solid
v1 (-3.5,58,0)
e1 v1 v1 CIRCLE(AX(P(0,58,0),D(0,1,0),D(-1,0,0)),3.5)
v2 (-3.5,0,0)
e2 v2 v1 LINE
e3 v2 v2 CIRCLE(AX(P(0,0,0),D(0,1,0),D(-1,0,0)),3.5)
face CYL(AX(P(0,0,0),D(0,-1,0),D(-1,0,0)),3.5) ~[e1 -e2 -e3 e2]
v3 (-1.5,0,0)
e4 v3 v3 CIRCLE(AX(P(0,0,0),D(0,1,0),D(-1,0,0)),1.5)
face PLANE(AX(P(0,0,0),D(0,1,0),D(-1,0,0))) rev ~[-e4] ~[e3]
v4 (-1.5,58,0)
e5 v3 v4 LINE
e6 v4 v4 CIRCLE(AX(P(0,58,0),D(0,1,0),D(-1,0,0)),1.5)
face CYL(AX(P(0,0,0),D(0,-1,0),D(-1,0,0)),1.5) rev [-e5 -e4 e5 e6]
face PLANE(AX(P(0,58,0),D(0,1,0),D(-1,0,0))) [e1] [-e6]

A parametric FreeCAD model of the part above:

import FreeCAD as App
import Part
import Sketcher
Q = App.Units.Quantity

doc = App.newDocument("Part")
params = doc.addObject("Spreadsheet::Sheet", "Params")
for row, (alias, value) in enumerate([
    ("sketch1_diameter", "7 mm"),
    ("sketch1_diameter2", "3 mm"),
    ("pad1_length", "58 mm"),
], start=1):
    params.set(f"A{row}", alias)
    params.set(f"B{row}", "=" + value)
    params.setAlias(f"B{row}", alias)

body = doc.addObject("PartDesign::Body", "Body")

sketch1 = doc.addObject("Sketcher::SketchObject", "Sketch")
body.addObject(sketch1)
sketch1.AttachmentSupport = (doc.XZ_Plane, [""])
sketch1.MapMode = "FlatFace"
sketch1.addGeometry([
    Part.Circle(App.Vector(0, 0, 0), App.Vector(0, 0, 1), 3.5),
    Part.Circle(App.Vector(0, 0, 0), App.Vector(0, 0, 1), 1.5),
], False)
sketch1.addConstraint([
    Sketcher.Constraint("Coincident", 0, 3, -1, 1),
    Sketcher.Constraint("Coincident", 1, 3, -1, 1),
    Sketcher.Constraint("Diameter", 0, Q("7 mm")),
    Sketcher.Constraint("Diameter", 1, Q("3 mm")),
])
sketch1.setExpression("Constraints[2]", "Params.sketch1_diameter")
sketch1.setExpression("Constraints[3]", "Params.sketch1_diameter2")
pad1 = doc.addObject("PartDesign::Pad", "Pad")
body.addObject(pad1)
pad1.Profile = sketch1
pad1.setExpression("Length", "Params.pad1_length")
pad1.Reversed = True

doc.recompute()
